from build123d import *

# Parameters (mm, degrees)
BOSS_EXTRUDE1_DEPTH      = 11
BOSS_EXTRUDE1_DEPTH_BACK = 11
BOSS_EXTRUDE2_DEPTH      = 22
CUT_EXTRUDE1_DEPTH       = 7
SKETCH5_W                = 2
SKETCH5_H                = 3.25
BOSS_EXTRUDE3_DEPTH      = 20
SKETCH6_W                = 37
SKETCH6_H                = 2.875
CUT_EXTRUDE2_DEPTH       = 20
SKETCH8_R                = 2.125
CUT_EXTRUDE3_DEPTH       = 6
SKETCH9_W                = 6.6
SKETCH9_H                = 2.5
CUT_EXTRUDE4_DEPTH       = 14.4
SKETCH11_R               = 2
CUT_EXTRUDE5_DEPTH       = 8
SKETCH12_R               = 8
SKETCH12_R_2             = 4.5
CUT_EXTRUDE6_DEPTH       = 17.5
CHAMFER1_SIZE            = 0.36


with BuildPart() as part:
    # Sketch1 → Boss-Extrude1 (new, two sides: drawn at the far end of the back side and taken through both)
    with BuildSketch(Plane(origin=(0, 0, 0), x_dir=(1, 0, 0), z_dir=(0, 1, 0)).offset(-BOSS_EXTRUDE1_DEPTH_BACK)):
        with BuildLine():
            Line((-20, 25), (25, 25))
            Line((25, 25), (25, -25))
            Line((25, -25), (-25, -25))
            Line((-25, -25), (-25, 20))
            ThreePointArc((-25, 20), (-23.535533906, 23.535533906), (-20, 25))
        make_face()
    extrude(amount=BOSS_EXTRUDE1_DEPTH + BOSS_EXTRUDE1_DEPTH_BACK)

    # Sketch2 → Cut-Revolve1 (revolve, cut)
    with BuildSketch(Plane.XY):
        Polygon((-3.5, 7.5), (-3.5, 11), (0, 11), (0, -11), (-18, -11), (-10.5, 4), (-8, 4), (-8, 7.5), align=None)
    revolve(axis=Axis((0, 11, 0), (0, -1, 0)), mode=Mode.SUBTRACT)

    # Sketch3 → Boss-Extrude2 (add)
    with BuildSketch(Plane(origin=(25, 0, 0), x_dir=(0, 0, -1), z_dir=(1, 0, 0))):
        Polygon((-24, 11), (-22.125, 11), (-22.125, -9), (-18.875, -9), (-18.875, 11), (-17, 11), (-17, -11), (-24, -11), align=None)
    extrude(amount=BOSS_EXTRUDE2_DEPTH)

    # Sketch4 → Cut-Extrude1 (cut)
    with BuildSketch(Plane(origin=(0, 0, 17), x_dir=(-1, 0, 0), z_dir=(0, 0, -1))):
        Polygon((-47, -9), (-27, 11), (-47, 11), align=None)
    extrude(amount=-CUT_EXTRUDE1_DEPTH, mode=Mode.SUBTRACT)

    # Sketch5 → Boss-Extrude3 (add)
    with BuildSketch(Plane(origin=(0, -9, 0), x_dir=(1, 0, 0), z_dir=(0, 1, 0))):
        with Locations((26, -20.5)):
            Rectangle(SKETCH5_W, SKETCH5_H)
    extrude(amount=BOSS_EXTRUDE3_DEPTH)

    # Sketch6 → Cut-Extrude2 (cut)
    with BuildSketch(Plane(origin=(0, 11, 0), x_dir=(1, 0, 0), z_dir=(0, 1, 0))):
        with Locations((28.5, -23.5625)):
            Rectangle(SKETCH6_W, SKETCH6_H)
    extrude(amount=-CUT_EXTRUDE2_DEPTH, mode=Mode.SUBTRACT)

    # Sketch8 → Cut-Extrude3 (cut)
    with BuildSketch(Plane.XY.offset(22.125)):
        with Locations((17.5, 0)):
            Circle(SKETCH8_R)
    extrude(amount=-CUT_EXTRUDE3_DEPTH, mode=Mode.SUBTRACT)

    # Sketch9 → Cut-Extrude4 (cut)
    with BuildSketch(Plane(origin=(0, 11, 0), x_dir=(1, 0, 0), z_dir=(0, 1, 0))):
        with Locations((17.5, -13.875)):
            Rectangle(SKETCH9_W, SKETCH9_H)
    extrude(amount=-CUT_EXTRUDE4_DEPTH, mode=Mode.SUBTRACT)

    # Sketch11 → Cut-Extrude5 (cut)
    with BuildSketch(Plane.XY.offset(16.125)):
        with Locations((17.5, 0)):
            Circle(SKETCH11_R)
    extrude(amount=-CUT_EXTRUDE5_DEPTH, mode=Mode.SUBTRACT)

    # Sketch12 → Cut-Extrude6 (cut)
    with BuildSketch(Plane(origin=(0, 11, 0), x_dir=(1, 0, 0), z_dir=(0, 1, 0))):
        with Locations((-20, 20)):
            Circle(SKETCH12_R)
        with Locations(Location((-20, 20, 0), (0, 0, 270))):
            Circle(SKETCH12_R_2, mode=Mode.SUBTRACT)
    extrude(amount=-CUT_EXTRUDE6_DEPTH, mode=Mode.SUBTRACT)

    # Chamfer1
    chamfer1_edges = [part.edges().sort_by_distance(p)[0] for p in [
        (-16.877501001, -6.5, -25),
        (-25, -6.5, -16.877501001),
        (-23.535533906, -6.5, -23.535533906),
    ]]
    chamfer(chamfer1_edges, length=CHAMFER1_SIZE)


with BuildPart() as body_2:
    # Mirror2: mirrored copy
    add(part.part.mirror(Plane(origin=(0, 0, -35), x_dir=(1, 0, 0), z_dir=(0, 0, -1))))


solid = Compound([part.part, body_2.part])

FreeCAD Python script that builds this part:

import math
import FreeCAD as App
import Part
import Sketcher
from FreeCAD import Vector


def edges_at(feature, points):
    """Names of the edges that pass closest to the given points."""
    edges = feature.Shape.Edges
    near = lambda p: min(range(len(edges)), key=lambda i: edges[i].distToShape(Part.Vertex(*p))[0])
    return sorted({f"Edge{near(p) + 1}" for p in points})


def add_polygon(sketch, points):
    """Adds a closed chain of lines whose ends are joined by coincident constraints."""
    first, n = sketch.GeometryCount, len(points)
    for a, b in zip(points, points[1:] + points[:1]):
        sketch.addGeometry(Part.LineSegment(App.Vector(*a, 0), App.Vector(*b, 0)), False)
    for i in range(n):
        sketch.addConstraint(Sketcher.Constraint("Coincident", first + i, 2, first + (i + 1) % n, 1))

doc = App.newDocument("Part")
body = doc.addObject("PartDesign::Body", "Body")

# Sketch on XZ plane
sketch1 = body.newObject("Sketcher::SketchObject", "Sketch")
sketch1.AttachmentSupport = (doc.getObject("XZ_Plane"), [""])
sketch1.MapMode = "FlatFace"
sketch1.addGeometry([
    Part.LineSegment(Vector(25, -25, 0), Vector(-20, -25, 0)),  # 0
    Part.ArcOfCircle(Part.Circle(Vector(-20, -20, 0), Vector(0, 0, 1), 5), math.radians(180), math.radians(270)),  # 1
    Part.LineSegment(Vector(-25, -20, 0), Vector(-25, 25, 0)),  # 2
    Part.LineSegment(Vector(-25, 25, 0), Vector(25, 25, 0)),  # 3
    Part.LineSegment(Vector(25, 25, 0), Vector(25, -25, 0)),  # 4
], False)
sketch1.addConstraint([
    Sketcher.Constraint("Tangent", 0, 2, 1, 2),
    Sketcher.Constraint("Tangent", 1, 1, 2, 1),
    Sketcher.Constraint("Coincident", 2, 2, 3, 1),
    Sketcher.Constraint("Coincident", 3, 2, 4, 1),
    Sketcher.Constraint("Coincident", 4, 2, 0, 1),
    Sketcher.Constraint("Horizontal", 0),
    Sketcher.Constraint("Vertical", 2),
    Sketcher.Constraint("Horizontal", 3),
    Sketcher.Constraint("Vertical", 4),
    Sketcher.Constraint("Symmetric", 2, 2, 4, 2, -1, 1),
    Sketcher.Constraint("Equal", 0, 2),
    Sketcher.Constraint("Radius", 1, 5.0),
    Sketcher.Constraint("DistanceX", 0, 2, 0, 1, 45.0),
])
pad1 = body.newObject("PartDesign::Pad", "Pad")
pad1.Profile = sketch1
pad1.Type = "TwoLengths"
pad1.Length = 11
pad1.Length2 = 11
pad1.Reversed = True

# Sketch on XY plane
sketch2 = body.newObject("Sketcher::SketchObject", "Sketch001")
sketch2.AttachmentSupport = (doc.getObject("XY_Plane"), [""])
sketch2.MapMode = "FlatFace"
add_polygon(sketch2, [(-3.5, 11), (-3.5, 7.5), (-8, 7.5), (-8, 4), (-10.5, 4), (-18, -11), (0, -11), (0, 11)])  # lines 0-7
sketch2.addConstraint([
    Sketcher.Constraint("Vertical", 0),
    Sketcher.Constraint("Horizontal", 1),
    Sketcher.Constraint("Vertical", 2),
    Sketcher.Constraint("Horizontal", 3),
    Sketcher.Constraint("Horizontal", 5),
    Sketcher.Constraint("Vertical", 6),
    Sketcher.Constraint("Horizontal", 7),
    Sketcher.Constraint("Symmetric", 5, 2, 6, 2, -1, 1),
    Sketcher.Constraint("Equal", 7, 0),
    Sketcher.Constraint("Equal", 0, 2),
    Sketcher.Constraint("DistanceX", 5, 1, 5, 2, 18.0),
    Sketcher.Constraint("DistanceY", 6, 1, 6, 2, 22.0),
    Sketcher.Constraint("DistanceX", 1, 2, 1, 1, 4.5),
    Sketcher.Constraint("DistanceX", 3, 2, 3, 1, 2.5),
    Sketcher.Constraint("DistanceX", 7, 2, 7, 1, 3.5),
])
groove = body.newObject("PartDesign::Groove", "Groove")
groove.Profile = sketch2
groove.ReferenceAxis = (sketch2, ["V_Axis"])
groove.Angle = 360

# Sketch on YZ plane
sketch3 = body.newObject("Sketcher::SketchObject", "Sketch002")
sketch3.AttachmentSupport = (doc.getObject("YZ_Plane"), [""])
sketch3.MapMode = "FlatFace"
sketch3.AttachmentOffset = App.Placement(Vector(0, 0, 25), App.Rotation())
add_polygon(sketch3, [(11, 22.1), (11, 24), (-11, 24), (-11, 17), (11, 17), (11, 18.9), (-9, 18.9), (-9, 22.1)])  # lines 0-7
sketch3.addConstraint([
    Sketcher.Constraint("Vertical", 0),
    Sketcher.Constraint("Horizontal", 1),
    Sketcher.Constraint("Vertical", 2),
    Sketcher.Constraint("Horizontal", 3),
    Sketcher.Constraint("Vertical", 4),
    Sketcher.Constraint("Horizontal", 5),
    Sketcher.Constraint("Vertical", 6),
    Sketcher.Constraint("Horizontal", 7),
    Sketcher.Constraint("Vertical", 0, 2, 3, 2),
    Sketcher.Constraint("Equal", 0, 4),
    Sketcher.Constraint("DistanceX", 1, 2, 1, 1, 22.0),
    Sketcher.Constraint("DistanceX", 5, 2, 5, 1, 20.0),
    Sketcher.Constraint("DistanceY", 2, 2, 2, 1, 7.0),
    Sketcher.Constraint("DistanceX", -1, 1, 0, 2, 11.0),
    Sketcher.Constraint("DistanceY", -1, 1, 0, 2, 24.0),
    Sketcher.Constraint("DistanceY", 6, 1, 6, 2, 3.25),
])
pad2 = body.newObject("PartDesign::Pad", "Pad001")
pad2.Profile = sketch3
pad2.Length = 22

# Sketch on XY plane
sketch4 = body.newObject("Sketcher::SketchObject", "Sketch003")
sketch4.AttachmentSupport = (doc.getObject("XY_Plane"), [""])
sketch4.MapMode = "FlatFace"
sketch4.AttachmentOffset = App.Placement(Vector(0, 0, 17), App.Rotation())
add_polygon(sketch4, [(47, -9), (27, 11), (47, 11)])  # lines 0-2
sketch4.addConstraint([
    Sketcher.Constraint("Horizontal", 1),
    Sketcher.Constraint("Vertical", 2),
    Sketcher.Constraint("Equal", 1, 2),
    Sketcher.Constraint("DistanceX", 1, 1, 1, 2, 20.0),
    Sketcher.Constraint("DistanceX", -1, 1, 0, 2, 27.0),
    Sketcher.Constraint("DistanceY", -1, 1, 0, 2, 11.0),
])
pocket1 = body.newObject("PartDesign::Pocket", "Pocket")
pocket1.Profile = sketch4
pocket1.Length = 7
pocket1.Reversed = True

# Sketch on XZ plane
sketch5 = body.newObject("Sketcher::SketchObject", "Sketch004")
sketch5.AttachmentSupport = (doc.getObject("XZ_Plane"), [""])
sketch5.MapMode = "FlatFace"
sketch5.AttachmentOffset = App.Placement(Vector(0, 0, 9), App.Rotation())
add_polygon(sketch5, [(25, 18.9), (25, 22.1), (27, 22.1), (27, 18.9)])  # lines 0-3
sketch5.addConstraint([
    Sketcher.Constraint("Vertical", 0),
    Sketcher.Constraint("Horizontal", 1),
    Sketcher.Constraint("Vertical", 2),
    Sketcher.Constraint("Horizontal", 3),
    Sketcher.Constraint("DistanceX", 1, 1, 1, 2, 2.0),
    Sketcher.Constraint("DistanceX", -1, 1, 0, 2, 25.0),
    Sketcher.Constraint("DistanceY", 0, 1, 0, 2, 3.25),
    Sketcher.Constraint("DistanceY", -1, 1, 0, 2, 22.125),
])
pad3 = body.newObject("PartDesign::Pad", "Pad002")
pad3.Profile = sketch5
pad3.Length = 20
pad3.Reversed = True

# Sketch on XZ plane
sketch6 = body.newObject("Sketcher::SketchObject", "Sketch005")
sketch6.AttachmentSupport = (doc.getObject("XZ_Plane"), [""])
sketch6.MapMode = "FlatFace"
sketch6.AttachmentOffset = App.Placement(Vector(0, 0, -11), App.Rotation())
add_polygon(sketch6, [(10, 22.1), (10, 25), (47, 25), (47, 22.1)])  # lines 0-3
sketch6.addConstraint([
    Sketcher.Constraint("Vertical", 0),
    Sketcher.Constraint("Horizontal", 1),
    Sketcher.Constraint("Vertical", 2),
    Sketcher.Constraint("Horizontal", 3),
    Sketcher.Constraint("DistanceX", 1, 1, 1, 2, 37.0),
    Sketcher.Constraint("DistanceX", -1, 1, 0, 2, 10.0),
    Sketcher.Constraint("DistanceY", -1, 1, 0, 2, 25.0),
    Sketcher.Constraint("DistanceY", 0, 1, 0, 2, 2.875),
])
pocket2 = body.newObject("PartDesign::Pocket", "Pocket001")
pocket2.Profile = sketch6
pocket2.Length = 20
pocket2.Reversed = True

# Sketch on XY plane
sketch7 = body.newObject("Sketcher::SketchObject", "Sketch006")
sketch7.AttachmentSupport = (doc.getObject("XY_Plane"), [""])
sketch7.MapMode = "FlatFace"
sketch7.AttachmentOffset = App.Placement(Vector(0, 0, 22.125), App.Rotation())
sketch7.addGeometry(Part.Circle(Vector(17.5, 0, 0), Vector(0, 0, 1), 2.1), False)
sketch7.addConstraint([
    Sketcher.Constraint("PointOnObject", 0, 3, -1),
    Sketcher.Constraint("Diameter", 0, 4.25),
    Sketcher.Constraint("DistanceX", -1, 1, 0, 3, 17.5),
])
pocket3 = body.newObject("PartDesign::Pocket", "Pocket002")
pocket3.Profile = sketch7
pocket3.Length = 6

# Sketch on XZ plane
sketch8 = body.newObject("Sketcher::SketchObject", "Sketch007")
sketch8.AttachmentSupport = (doc.getObject("XZ_Plane"), [""])
sketch8.MapMode = "FlatFace"
sketch8.AttachmentOffset = App.Placement(Vector(0, 0, -11), App.Rotation())
add_polygon(sketch8, [(14.2, 12.6), (14.2, 15.1), (20.8, 15.1), (20.8, 12.6)])  # lines 0-3
sketch8.addConstraint([
    Sketcher.Constraint("Vertical", 0),
    Sketcher.Constraint("Horizontal", 1),
    Sketcher.Constraint("Vertical", 2),
    Sketcher.Constraint("Horizontal", 3),
    Sketcher.Constraint("DistanceX", 1, 1, 1, 2, 6.6),
    Sketcher.Constraint("DistanceY", 0, 1, 0, 2, 2.5),
    Sketcher.Constraint("DistanceX", -1, 1, 0, 2, 14.2),
    Sketcher.Constraint("DistanceY", -1, 1, 0, 2, 15.125),
])
pocket4 = body.newObject("PartDesign::Pocket", "Pocket003")
pocket4.Profile = sketch8
pocket4.Length = 14.4
pocket4.Reversed = True

# Sketch on XY plane
sketch9 = body.newObject("Sketcher::SketchObject", "Sketch008")
sketch9.AttachmentSupport = (doc.getObject("XY_Plane"), [""])
sketch9.MapMode = "FlatFace"
sketch9.AttachmentOffset = App.Placement(Vector(0, 0, 16.125), App.Rotation())
sketch9.addGeometry(Part.Circle(Vector(17.5, 0, 0), Vector(0, 0, 1), 2), False)
sketch9.addConstraint([
    Sketcher.Constraint("PointOnObject", 0, 3, -1),
    Sketcher.Constraint("Diameter", 0, 4.0),
    Sketcher.Constraint("DistanceX", -1, 1, 0, 3, 17.5),
])
pocket5 = body.newObject("PartDesign::Pocket", "Pocket004")
pocket5.Profile = sketch9
pocket5.Length = 8

# Sketch on XZ plane
sketch10 = body.newObject("Sketcher::SketchObject", "Sketch009")
sketch10.AttachmentSupport = (doc.getObject("XZ_Plane"), [""])
sketch10.MapMode = "FlatFace"
sketch10.AttachmentOffset = App.Placement(Vector(0, 0, -11), App.Rotation())
sketch10.addGeometry([
    Part.Circle(Vector(-20, -20, 0), Vector(0, 0, 1), 8),
    Part.Circle(Vector(-20, -20, 0), Vector(0, 0, 1), 4.5),
], False)
sketch10.addConstraint([
    Sketcher.Constraint("Coincident", 1, 3, 0, 3),
    Sketcher.Constraint("Diameter", 0, 16.0),
    Sketcher.Constraint("Diameter", 1, 9.0),
    Sketcher.Constraint("DistanceX", 0, 3, -1, 1, 20.0),
    Sketcher.Constraint("DistanceY", 0, 3, -1, 1, 20.0),
])
pocket6 = body.newObject("PartDesign::Pocket", "Pocket005")
pocket6.Profile = sketch10
pocket6.Length = 17.5
pocket6.Reversed = True
doc.recompute()

chamfer = body.newObject("PartDesign::Chamfer", "Chamfer")
chamfer.Base = (pocket6, edges_at(pocket6, [(-16.878, -6.5, -25), (-25, -6.5, -16.878), (-23.536, -6.5, -23.536)]))
chamfer.Size = 0.36
body2 = doc.addObject("PartDesign::Body", "Body001")
doc.recompute()

mirroring = doc.addObject("Part::Mirroring", "Mirroring")
mirroring.Source = body
mirroring.Base = Vector(0, 0, -35)
mirroring.Normal = Vector(0, 0, -1)
body2.BaseFeature = mirroring
doc.recompute()
mirroring.Visibility = False

doc.recompute()
